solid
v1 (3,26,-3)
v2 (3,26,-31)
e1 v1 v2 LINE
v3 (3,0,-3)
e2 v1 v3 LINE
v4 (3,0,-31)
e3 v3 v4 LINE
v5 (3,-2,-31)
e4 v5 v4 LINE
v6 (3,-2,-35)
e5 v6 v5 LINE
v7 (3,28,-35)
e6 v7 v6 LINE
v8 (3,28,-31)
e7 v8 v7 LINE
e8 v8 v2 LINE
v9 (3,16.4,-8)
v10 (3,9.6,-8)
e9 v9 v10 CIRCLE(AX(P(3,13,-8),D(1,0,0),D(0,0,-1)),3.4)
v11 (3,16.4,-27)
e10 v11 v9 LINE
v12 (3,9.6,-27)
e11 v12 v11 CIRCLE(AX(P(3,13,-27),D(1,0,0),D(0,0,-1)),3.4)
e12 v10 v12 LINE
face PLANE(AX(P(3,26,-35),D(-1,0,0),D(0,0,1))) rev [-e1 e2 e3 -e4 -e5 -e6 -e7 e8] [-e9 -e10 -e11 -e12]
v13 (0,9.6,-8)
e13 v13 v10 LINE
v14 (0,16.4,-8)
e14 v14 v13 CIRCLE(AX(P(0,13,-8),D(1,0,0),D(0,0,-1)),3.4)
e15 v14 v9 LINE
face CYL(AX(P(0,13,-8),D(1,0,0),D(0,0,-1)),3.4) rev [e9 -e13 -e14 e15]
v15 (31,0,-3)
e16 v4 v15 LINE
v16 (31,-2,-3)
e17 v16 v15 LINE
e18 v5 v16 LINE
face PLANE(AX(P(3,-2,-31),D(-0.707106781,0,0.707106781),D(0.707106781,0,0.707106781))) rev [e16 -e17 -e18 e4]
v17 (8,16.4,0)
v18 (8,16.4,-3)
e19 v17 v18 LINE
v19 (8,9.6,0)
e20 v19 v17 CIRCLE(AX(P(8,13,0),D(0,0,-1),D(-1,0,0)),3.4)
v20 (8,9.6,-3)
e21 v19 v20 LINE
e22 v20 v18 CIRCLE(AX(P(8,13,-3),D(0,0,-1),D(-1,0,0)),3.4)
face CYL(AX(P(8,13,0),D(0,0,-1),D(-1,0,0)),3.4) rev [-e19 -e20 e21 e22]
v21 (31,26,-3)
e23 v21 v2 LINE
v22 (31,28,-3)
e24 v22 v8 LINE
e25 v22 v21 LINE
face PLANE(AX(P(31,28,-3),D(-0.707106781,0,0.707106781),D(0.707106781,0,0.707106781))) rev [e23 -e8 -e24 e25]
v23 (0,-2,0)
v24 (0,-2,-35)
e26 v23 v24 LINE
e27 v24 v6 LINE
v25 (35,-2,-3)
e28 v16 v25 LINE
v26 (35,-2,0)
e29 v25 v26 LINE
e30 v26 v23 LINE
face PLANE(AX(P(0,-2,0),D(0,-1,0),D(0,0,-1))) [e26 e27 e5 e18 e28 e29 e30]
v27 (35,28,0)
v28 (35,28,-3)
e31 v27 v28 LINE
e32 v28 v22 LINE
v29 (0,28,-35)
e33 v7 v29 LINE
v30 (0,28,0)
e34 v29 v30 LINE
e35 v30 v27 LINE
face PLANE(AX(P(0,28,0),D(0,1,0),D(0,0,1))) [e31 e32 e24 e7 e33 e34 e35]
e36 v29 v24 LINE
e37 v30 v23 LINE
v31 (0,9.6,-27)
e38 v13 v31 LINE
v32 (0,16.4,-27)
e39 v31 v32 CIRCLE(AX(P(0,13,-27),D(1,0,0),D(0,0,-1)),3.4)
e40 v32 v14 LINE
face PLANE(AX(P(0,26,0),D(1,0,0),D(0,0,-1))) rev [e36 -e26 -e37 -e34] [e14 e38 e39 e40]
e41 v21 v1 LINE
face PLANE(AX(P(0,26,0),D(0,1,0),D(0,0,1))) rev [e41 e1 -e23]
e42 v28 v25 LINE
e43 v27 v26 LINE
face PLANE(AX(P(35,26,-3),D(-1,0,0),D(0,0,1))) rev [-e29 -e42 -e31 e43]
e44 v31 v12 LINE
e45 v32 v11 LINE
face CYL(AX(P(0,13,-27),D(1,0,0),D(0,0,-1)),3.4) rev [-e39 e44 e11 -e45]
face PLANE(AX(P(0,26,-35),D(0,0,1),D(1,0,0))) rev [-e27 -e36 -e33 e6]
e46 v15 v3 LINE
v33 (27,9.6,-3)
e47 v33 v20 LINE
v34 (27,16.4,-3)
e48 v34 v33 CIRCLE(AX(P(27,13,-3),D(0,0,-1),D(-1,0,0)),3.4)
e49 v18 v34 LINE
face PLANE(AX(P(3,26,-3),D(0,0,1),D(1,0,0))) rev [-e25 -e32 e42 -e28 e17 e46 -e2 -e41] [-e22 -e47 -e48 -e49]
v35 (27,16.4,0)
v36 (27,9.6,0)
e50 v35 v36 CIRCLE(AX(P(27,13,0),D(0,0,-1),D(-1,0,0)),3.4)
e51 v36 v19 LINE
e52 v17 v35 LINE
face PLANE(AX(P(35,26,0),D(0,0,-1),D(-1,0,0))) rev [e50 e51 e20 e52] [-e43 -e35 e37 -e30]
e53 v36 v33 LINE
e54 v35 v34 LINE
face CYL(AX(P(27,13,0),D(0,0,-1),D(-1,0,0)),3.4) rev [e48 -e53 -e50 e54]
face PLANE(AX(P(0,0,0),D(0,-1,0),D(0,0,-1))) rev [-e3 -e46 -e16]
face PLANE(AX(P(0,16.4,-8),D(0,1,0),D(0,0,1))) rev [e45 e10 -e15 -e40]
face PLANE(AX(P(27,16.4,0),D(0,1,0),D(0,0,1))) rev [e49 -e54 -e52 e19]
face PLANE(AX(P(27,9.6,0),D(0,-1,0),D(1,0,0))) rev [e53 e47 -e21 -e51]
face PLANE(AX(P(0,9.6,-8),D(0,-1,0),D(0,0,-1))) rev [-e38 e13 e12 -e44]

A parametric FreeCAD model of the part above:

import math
import FreeCAD as App
import Part
import Sketcher

V = App.Vector
Q = App.Units.Quantity

doc = App.newDocument("Part")
body = doc.addObject("PartDesign::Body", "Body")

sketch1 = body.newObject("Sketcher::SketchObject", "Sketch")
sketch1.AttachmentSupport = (doc.getObject("XZ_Plane"), [""])
sketch1.MapMode = "FlatFace"
sketch1.addGeometry(Part.LineSegment(V(0, -35, 0), V(0, 0, 0)), False)
sketch1.addGeometry(Part.LineSegment(V(0, 0, 0), V(35, 0, 0)), False)
sketch1.addGeometry(Part.LineSegment(V(35, 0, 0), V(35, -3, 0)), False)
sketch1.addGeometry(Part.LineSegment(V(35, -3, 0), V(3, -3, 0)), False)
sketch1.addGeometry(Part.LineSegment(V(3, -3, 0), V(3, -35, 0)), False)
sketch1.addGeometry(Part.LineSegment(V(3, -35, 0), V(0, -35, 0)), False)
sketch1.addConstraint(Sketcher.Constraint("Coincident", 0, 2, 1, 1))
sketch1.addConstraint(Sketcher.Constraint("Coincident", 1, 2, 2, 1))
sketch1.addConstraint(Sketcher.Constraint("Coincident", 2, 2, 3, 1))
sketch1.addConstraint(Sketcher.Constraint("Coincident", 3, 2, 4, 1))
sketch1.addConstraint(Sketcher.Constraint("Coincident", 4, 2, 5, 1))
sketch1.addConstraint(Sketcher.Constraint("Coincident", 5, 2, 0, 1))
sketch1.addConstraint(Sketcher.Constraint("Vertical", 0))
sketch1.addConstraint(Sketcher.Constraint("Horizontal", 1))
sketch1.addConstraint(Sketcher.Constraint("Vertical", 2))
sketch1.addConstraint(Sketcher.Constraint("Horizontal", 3))
sketch1.addConstraint(Sketcher.Constraint("Vertical", 4))
sketch1.addConstraint(Sketcher.Constraint("Horizontal", 5))
sketch1.addConstraint(Sketcher.Constraint("Coincident", 0, 2, -1, 1))
sketch1.addConstraint(Sketcher.Constraint("Equal", 1, 0))
sketch1.addConstraint(Sketcher.Constraint("Equal", 5, 2))
sketch1.addConstraint(Sketcher.Constraint("DistanceX", 1, 1, 1, 2, Q("35 mm")))
sketch1.addConstraint(Sketcher.Constraint("DistanceX", 3, 2, 3, 1, Q("32 mm")))
pad1 = body.newObject("PartDesign::Pad", "Pad")
pad1.Profile = sketch1
pad1.Length = 26
pad1.Reversed = True

sketch2 = body.newObject("Sketcher::SketchObject", "Sketch001")
sketch2.AttachmentSupport = (doc.getObject("XZ_Plane"), [""])
sketch2.MapMode = "FlatFace"
sketch2.AttachmentOffset = App.Placement(V(0, 0, -26), App.Rotation())
sketch2.addGeometry(Part.LineSegment(V(3, -35, 0), V(0, -35, 0)), False)
sketch2.addGeometry(Part.LineSegment(V(0, -35, 0), V(0, 0, 0)), False)
sketch2.addGeometry(Part.LineSegment(V(0, 0, 0), V(35, 0, 0)), False)
sketch2.addGeometry(Part.LineSegment(V(35, 0, 0), V(35, -3, 0)), False)
sketch2.addGeometry(Part.LineSegment(V(35, -3, 0), V(31, -3, 0)), False)
sketch2.addGeometry(Part.LineSegment(V(31, -3, 0), V(3, -31, 0)), False)
sketch2.addGeometry(Part.LineSegment(V(3, -31, 0), V(3, -35, 0)), False)
sketch2.addConstraint(Sketcher.Constraint("Coincident", 0, 2, 1, 1))
sketch2.addConstraint(Sketcher.Constraint("Coincident", 1, 2, 2, 1))
sketch2.addConstraint(Sketcher.Constraint("Coincident", 2, 2, 3, 1))
sketch2.addConstraint(Sketcher.Constraint("Coincident", 3, 2, 4, 1))
sketch2.addConstraint(Sketcher.Constraint("Coincident", 4, 2, 5, 1))
sketch2.addConstraint(Sketcher.Constraint("Coincident", 5, 2, 6, 1))
sketch2.addConstraint(Sketcher.Constraint("Coincident", 6, 2, 0, 1))
sketch2.addConstraint(Sketcher.Constraint("Horizontal", 0))
sketch2.addConstraint(Sketcher.Constraint("Vertical", 1))
sketch2.addConstraint(Sketcher.Constraint("Horizontal", 2))
sketch2.addConstraint(Sketcher.Constraint("Vertical", 3))
sketch2.addConstraint(Sketcher.Constraint("Horizontal", 4))
sketch2.addConstraint(Sketcher.Constraint("Vertical", 6))
sketch2.addConstraint(Sketcher.Constraint("Coincident", 1, 2, -1, 1))
sketch2.addConstraint(Sketcher.Constraint("Equal", 2, 1))
sketch2.addConstraint(Sketcher.Constraint("Equal", 0, 3))
sketch2.addConstraint(Sketcher.Constraint("Equal", 4, 6))
sketch2.addConstraint(Sketcher.Constraint("DistanceX", 0, 2, 0, 1, Q("3 mm")))
sketch2.addConstraint(Sketcher.Constraint("DistanceX", 2, 1, 2, 2, Q("35 mm")))
sketch2.addConstraint(Sketcher.Constraint("DistanceX", 4, 2, 4, 1, Q("4 mm")))
pad2 = body.newObject("PartDesign::Pad", "Pad001")
pad2.Profile = sketch2
pad2.Length = 2
pad2.Reversed = True

sketch3 = body.newObject("Sketcher::SketchObject", "Sketch002")
sketch3.AttachmentSupport = (doc.getObject("XZ_Plane"), [""])
sketch3.MapMode = "FlatFace"
sketch3.addGeometry(Part.LineSegment(V(0, 0, 0), V(0, -35, 0)), False)
sketch3.addGeometry(Part.LineSegment(V(0, -35, 0), V(3, -35, 0)), False)
sketch3.addGeometry(Part.LineSegment(V(3, -35, 0), V(3, -31, 0)), False)
sketch3.addGeometry(Part.LineSegment(V(3, -31, 0), V(31, -3, 0)), False)
sketch3.addGeometry(Part.LineSegment(V(31, -3, 0), V(35, -3, 0)), False)
sketch3.addGeometry(Part.LineSegment(V(35, -3, 0), V(35, 0, 0)), False)
sketch3.addGeometry(Part.LineSegment(V(35, 0, 0), V(0, 0, 0)), False)
sketch3.addConstraint(Sketcher.Constraint("Coincident", 0, 2, 1, 1))
sketch3.addConstraint(Sketcher.Constraint("Coincident", 1, 2, 2, 1))
sketch3.addConstraint(Sketcher.Constraint("Coincident", 2, 2, 3, 1))
sketch3.addConstraint(Sketcher.Constraint("Coincident", 3, 2, 4, 1))
sketch3.addConstraint(Sketcher.Constraint("Coincident", 4, 2, 5, 1))
sketch3.addConstraint(Sketcher.Constraint("Coincident", 5, 2, 6, 1))
sketch3.addConstraint(Sketcher.Constraint("Coincident", 6, 2, 0, 1))
sketch3.addConstraint(Sketcher.Constraint("Vertical", 0))
sketch3.addConstraint(Sketcher.Constraint("Horizontal", 1))
sketch3.addConstraint(Sketcher.Constraint("Vertical", 2))
sketch3.addConstraint(Sketcher.Constraint("Horizontal", 4))
sketch3.addConstraint(Sketcher.Constraint("Vertical", 5))
sketch3.addConstraint(Sketcher.Constraint("Horizontal", 6))
sketch3.addConstraint(Sketcher.Constraint("Coincident", 6, 2, -1, 1))
sketch3.addConstraint(Sketcher.Constraint("Equal", 6, 0))
sketch3.addConstraint(Sketcher.Constraint("Equal", 4, 2))
sketch3.addConstraint(Sketcher.Constraint("Equal", 1, 5))
sketch3.addConstraint(Sketcher.Constraint("DistanceX", 1, 1, 1, 2, Q("3 mm")))
sketch3.addConstraint(Sketcher.Constraint("DistanceX", 4, 1, 4, 2, Q("4 mm")))
sketch3.addConstraint(Sketcher.Constraint("DistanceX", 6, 2, 6, 1, Q("35 mm")))
pad3 = body.newObject("PartDesign::Pad", "Pad002")
pad3.Profile = sketch3
pad3.Length = 2

sketch4 = body.newObject("Sketcher::SketchObject", "Sketch003")
sketch4.AttachmentSupport = (doc.getObject("XY_Plane"), [""])
sketch4.MapMode = "FlatFace"
sketch4.AttachmentOffset = App.Placement(V(0, 0, -3), App.Rotation())
sketch4.addGeometry(Part.LineSegment(V(8, 16.4, 0), V(27, 16.4, 0)), False)
sketch4.addGeometry(Part.ArcOfCircle(Part.Circle(V(27, 13, 0), V(0, 0, 1), 3.4), math.radians(-90), math.radians(90)), False)
sketch4.addGeometry(Part.LineSegment(V(27, 9.6, 0), V(8, 9.6, 0)), False)
sketch4.addGeometry(Part.ArcOfCircle(Part.Circle(V(8, 13, 0), V(0, 0, 1), 3.4), math.radians(90), math.radians(270)), False)
sketch4.addConstraint(Sketcher.Constraint("Tangent", 0, 2, 1, 2))
sketch4.addConstraint(Sketcher.Constraint("Tangent", 1, 1, 2, 1))
sketch4.addConstraint(Sketcher.Constraint("Tangent", 2, 2, 3, 2))
sketch4.addConstraint(Sketcher.Constraint("Tangent", 3, 1, 0, 1))
sketch4.addConstraint(Sketcher.Constraint("Horizontal", 0))
sketch4.addConstraint(Sketcher.Constraint("Horizontal", 2))
sketch4.addConstraint(Sketcher.Constraint("Radius", 1, Q("3.4 mm")))
sketch4.addConstraint(Sketcher.Constraint("DistanceX", 0, 1, 0, 2, Q("19 mm")))
sketch4.addConstraint(Sketcher.Constraint("DistanceX", -1, 1, 1, 3, Q("27 mm")))
sketch4.addConstraint(Sketcher.Constraint("DistanceY", -1, 1, 1, 3, Q("13 mm")))
pocket1 = body.newObject("PartDesign::Pocket", "Pocket")
pocket1.Profile = sketch4
pocket1.Type = "ThroughAll"
pocket1.Reversed = True

sketch5 = body.newObject("Sketcher::SketchObject", "Sketch004")
sketch5.AttachmentSupport = (doc.getObject("YZ_Plane"), [""])
sketch5.MapMode = "FlatFace"
sketch5.AttachmentOffset = App.Placement(V(0, 0, 3), App.Rotation())
sketch5.addGeometry(Part.LineSegment(V(16.4, -27, 0), V(16.4, -8, 0)), False)
sketch5.addGeometry(Part.ArcOfCircle(Part.Circle(V(13, -8, 0), V(0, 0, 1), 3.4), math.radians(0), math.radians(180)), False)
sketch5.addGeometry(Part.LineSegment(V(9.6, -8, 0), V(9.6, -27, 0)), False)
sketch5.addGeometry(Part.ArcOfCircle(Part.Circle(V(13, -27, 0), V(0, 0, 1), 3.4), math.radians(180), math.radians(360)), False)
sketch5.addConstraint(Sketcher.Constraint("Tangent", 0, 2, 1, 1))
sketch5.addConstraint(Sketcher.Constraint("Tangent", 1, 2, 2, 1))
sketch5.addConstraint(Sketcher.Constraint("Tangent", 2, 2, 3, 1))
sketch5.addConstraint(Sketcher.Constraint("Tangent", 3, 2, 0, 1))
sketch5.addConstraint(Sketcher.Constraint("Vertical", 0))
sketch5.addConstraint(Sketcher.Constraint("Vertical", 2))
sketch5.addConstraint(Sketcher.Constraint("Radius", 1, Q("3.4 mm")))
sketch5.addConstraint(Sketcher.Constraint("DistanceY", 0, 1, 0, 2, Q("19 mm")))
sketch5.addConstraint(Sketcher.Constraint("DistanceX", -1, 1, 1, 3, Q("13 mm")))
sketch5.addConstraint(Sketcher.Constraint("DistanceY", 1, 3, -1, 1, Q("8 mm")))
pocket2 = body.newObject("PartDesign::Pocket", "Pocket001")
pocket2.Profile = sketch5
pocket2.Type = "ThroughAll"

doc.recompute()
